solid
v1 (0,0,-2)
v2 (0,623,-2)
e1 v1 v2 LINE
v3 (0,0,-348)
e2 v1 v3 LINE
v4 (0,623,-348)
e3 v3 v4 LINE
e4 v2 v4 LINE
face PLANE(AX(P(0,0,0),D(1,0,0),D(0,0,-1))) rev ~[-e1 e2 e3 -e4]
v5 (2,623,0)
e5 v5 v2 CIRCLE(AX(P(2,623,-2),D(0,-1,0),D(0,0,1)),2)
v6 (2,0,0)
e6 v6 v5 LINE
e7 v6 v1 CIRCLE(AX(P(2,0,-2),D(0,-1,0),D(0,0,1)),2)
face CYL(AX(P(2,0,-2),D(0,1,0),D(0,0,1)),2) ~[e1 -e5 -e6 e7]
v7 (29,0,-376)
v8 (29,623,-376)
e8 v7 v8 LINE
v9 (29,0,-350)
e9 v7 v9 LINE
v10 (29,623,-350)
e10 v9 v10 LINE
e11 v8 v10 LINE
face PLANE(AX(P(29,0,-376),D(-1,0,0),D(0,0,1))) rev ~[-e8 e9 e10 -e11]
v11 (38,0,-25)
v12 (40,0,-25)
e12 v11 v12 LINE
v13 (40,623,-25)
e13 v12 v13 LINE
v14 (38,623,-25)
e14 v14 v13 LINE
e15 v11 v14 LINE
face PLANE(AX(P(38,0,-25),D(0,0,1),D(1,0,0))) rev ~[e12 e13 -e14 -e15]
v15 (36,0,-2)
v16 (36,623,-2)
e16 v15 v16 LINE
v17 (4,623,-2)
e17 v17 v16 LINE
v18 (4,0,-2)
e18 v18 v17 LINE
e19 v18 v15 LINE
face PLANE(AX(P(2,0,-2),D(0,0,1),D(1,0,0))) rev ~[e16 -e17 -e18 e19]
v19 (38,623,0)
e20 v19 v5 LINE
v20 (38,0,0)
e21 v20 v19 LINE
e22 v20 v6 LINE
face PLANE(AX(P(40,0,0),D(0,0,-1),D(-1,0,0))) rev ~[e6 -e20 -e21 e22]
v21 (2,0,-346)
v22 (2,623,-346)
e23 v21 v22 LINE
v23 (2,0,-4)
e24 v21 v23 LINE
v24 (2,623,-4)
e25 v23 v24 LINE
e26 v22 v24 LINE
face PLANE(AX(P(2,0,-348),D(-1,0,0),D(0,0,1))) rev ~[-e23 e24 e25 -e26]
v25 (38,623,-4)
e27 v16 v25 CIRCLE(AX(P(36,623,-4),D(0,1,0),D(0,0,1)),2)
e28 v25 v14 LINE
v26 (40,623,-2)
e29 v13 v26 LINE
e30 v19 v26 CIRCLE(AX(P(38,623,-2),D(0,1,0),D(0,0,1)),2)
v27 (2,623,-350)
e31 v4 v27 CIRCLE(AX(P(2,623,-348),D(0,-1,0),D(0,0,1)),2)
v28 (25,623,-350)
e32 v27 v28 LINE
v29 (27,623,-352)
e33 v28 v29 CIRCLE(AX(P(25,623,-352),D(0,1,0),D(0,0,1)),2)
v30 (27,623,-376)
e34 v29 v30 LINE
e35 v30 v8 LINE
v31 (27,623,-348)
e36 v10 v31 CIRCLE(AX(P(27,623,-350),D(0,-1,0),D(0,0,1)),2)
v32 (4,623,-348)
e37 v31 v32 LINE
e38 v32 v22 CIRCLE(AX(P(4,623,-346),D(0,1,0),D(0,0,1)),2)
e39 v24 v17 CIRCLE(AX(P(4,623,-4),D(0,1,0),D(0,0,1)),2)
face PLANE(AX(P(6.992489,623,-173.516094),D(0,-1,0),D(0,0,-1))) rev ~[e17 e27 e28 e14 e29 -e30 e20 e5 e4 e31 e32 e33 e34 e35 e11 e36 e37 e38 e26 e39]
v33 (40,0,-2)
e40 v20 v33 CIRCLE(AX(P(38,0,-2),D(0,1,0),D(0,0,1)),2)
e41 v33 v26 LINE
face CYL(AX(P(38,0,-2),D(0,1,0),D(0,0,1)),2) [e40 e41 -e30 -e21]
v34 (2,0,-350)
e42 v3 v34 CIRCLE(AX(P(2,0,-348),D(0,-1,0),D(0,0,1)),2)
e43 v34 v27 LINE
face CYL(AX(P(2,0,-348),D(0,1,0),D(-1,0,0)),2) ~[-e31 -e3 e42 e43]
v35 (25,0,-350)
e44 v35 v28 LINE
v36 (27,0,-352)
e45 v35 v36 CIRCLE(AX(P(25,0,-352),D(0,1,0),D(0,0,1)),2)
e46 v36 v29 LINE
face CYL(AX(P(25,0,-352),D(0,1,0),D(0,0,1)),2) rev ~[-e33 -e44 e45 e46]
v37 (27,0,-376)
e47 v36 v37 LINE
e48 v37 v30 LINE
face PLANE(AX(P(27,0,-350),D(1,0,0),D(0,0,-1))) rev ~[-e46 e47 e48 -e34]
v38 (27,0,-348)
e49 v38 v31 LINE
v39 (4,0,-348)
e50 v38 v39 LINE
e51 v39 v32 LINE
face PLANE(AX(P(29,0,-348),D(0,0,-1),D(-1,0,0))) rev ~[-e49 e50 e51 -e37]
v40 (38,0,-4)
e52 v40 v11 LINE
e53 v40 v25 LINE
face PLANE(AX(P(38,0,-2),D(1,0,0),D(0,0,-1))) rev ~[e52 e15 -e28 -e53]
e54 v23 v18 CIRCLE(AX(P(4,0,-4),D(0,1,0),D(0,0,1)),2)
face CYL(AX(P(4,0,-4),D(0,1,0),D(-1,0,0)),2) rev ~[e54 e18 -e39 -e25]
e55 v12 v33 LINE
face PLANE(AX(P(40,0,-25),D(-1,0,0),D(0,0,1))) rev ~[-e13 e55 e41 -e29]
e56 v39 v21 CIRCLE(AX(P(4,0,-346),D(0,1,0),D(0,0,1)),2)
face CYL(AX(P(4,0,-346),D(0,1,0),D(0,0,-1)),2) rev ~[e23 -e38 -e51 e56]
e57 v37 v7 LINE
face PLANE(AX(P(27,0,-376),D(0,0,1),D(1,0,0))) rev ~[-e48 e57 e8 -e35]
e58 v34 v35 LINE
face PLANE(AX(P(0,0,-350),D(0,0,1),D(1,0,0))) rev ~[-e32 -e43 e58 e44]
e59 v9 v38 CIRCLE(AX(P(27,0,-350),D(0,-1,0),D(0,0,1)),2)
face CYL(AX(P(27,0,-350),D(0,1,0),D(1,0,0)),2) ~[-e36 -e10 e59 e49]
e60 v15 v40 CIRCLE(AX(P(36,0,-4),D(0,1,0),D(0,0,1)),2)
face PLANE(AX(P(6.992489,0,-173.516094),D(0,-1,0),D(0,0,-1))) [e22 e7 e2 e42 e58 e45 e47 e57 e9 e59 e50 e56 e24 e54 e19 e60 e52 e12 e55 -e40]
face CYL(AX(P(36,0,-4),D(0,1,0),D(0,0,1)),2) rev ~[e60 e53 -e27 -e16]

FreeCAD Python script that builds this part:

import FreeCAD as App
import Part
import Sketcher


def edges_at(feature, points):
    """Names of the edges that pass closest to the given points."""
    edges = feature.Shape.Edges
    near = lambda p: min(range(len(edges)), key=lambda i: edges[i].distToShape(Part.Vertex(*p))[0])
    return sorted({f"Edge{near(p) + 1}" for p in points})


def add_polygon(sketch, points):
    """Adds a closed chain of lines whose ends are joined by coincident constraints."""
    first, n = sketch.GeometryCount, len(points)
    for a, b in zip(points, points[1:] + points[:1]):
        sketch.addGeometry(Part.LineSegment(App.Vector(*a, 0), App.Vector(*b, 0)), False)
    for i in range(n):
        sketch.addConstraint(Sketcher.Constraint("Coincident", first + i, 2, first + (i + 1) % n, 1))

doc = App.newDocument("Part")
body = doc.addObject("PartDesign::Body", "Body")

# Sketch on XZ plane
sketch1 = body.newObject("Sketcher::SketchObject", "Sketch")
sketch1.AttachmentSupport = (doc.getObject("XZ_Plane"), [""])
sketch1.MapMode = "FlatFace"
add_polygon(sketch1, [(40, 0), (0, 0), (0, -350), (27, -350), (27, -376), (29, -376), (29, -348), (2, -348), (2, -2), (38, -2), (38, -25), (40, -25)])  # lines 0-11
sketch1.addConstraint([
    Sketcher.Constraint("Horizontal", 0),
    Sketcher.Constraint("Vertical", 1),
    Sketcher.Constraint("Horizontal", 2),
    Sketcher.Constraint("Vertical", 3),
    Sketcher.Constraint("Horizontal", 4),
    Sketcher.Constraint("Vertical", 5),
    Sketcher.Constraint("Horizontal", 6),
    Sketcher.Constraint("Vertical", 7),
    Sketcher.Constraint("Horizontal", 8),
    Sketcher.Constraint("Vertical", 9),
    Sketcher.Constraint("Horizontal", 10),
    Sketcher.Constraint("Vertical", 11),
    Sketcher.Constraint("Coincident", 0, 2, -1, 1),
    Sketcher.Constraint("Equal", 2, 6),
    Sketcher.Constraint("Equal", 4, 10),
    Sketcher.Constraint("DistanceX", 0, 2, 0, 1, 40.0),
    Sketcher.Constraint("DistanceX", 2, 1, 2, 2, 27.0),
    Sketcher.Constraint("DistanceX", 4, 1, 4, 2, 2.0),
    Sketcher.Constraint("DistanceY", 1, 2, 1, 1, 350.0),
    Sketcher.Constraint("DistanceY", 3, 2, 3, 1, 26.0),
    Sketcher.Constraint("DistanceY", 5, 1, 5, 2, 28.0),
    Sketcher.Constraint("DistanceY", 7, 1, 7, 2, 346.0),
    Sketcher.Constraint("DistanceY", 9, 2, 9, 1, 23.0),
])

# Sketch on XY plane
sketch2 = body.newObject("Sketcher::SketchObject", "Sketch001")
sketch2.AttachmentSupport = (doc.getObject("XY_Plane"), [""])
sketch2.MapMode = "FlatFace"
sketch2.addGeometry(Part.LineSegment(App.Vector(0, 0, 0), App.Vector(0, 623, 0)), False)
sketch2.addConstraint([
    Sketcher.Constraint("Vertical", 0),
    Sketcher.Constraint("Coincident", 0, 1, -1, 1),
    Sketcher.Constraint("DistanceY", 0, 1, 0, 2, 623.0),
])
doc.recompute()

additivepipe = body.newObject("PartDesign::AdditivePipe", "AdditivePipe")
additivepipe.Profile = sketch1
additivepipe.Spine = (sketch2, ["Edge1"])
doc.recompute()

fillet = body.newObject("PartDesign::Fillet", "Fillet")
fillet.Base = (additivepipe, edges_at(additivepipe, [
    (40, 311.5, 0),
    (0, 311.5, 0),
    (29, 311.5, -348),
    (2, 311.5, -348),
    (2, 311.5, -2),
    (38, 311.5, -2),
    (27, 311.5, -350),
    (0, 311.5, -350),
]))
fillet.Radius = 2

doc.recompute()
